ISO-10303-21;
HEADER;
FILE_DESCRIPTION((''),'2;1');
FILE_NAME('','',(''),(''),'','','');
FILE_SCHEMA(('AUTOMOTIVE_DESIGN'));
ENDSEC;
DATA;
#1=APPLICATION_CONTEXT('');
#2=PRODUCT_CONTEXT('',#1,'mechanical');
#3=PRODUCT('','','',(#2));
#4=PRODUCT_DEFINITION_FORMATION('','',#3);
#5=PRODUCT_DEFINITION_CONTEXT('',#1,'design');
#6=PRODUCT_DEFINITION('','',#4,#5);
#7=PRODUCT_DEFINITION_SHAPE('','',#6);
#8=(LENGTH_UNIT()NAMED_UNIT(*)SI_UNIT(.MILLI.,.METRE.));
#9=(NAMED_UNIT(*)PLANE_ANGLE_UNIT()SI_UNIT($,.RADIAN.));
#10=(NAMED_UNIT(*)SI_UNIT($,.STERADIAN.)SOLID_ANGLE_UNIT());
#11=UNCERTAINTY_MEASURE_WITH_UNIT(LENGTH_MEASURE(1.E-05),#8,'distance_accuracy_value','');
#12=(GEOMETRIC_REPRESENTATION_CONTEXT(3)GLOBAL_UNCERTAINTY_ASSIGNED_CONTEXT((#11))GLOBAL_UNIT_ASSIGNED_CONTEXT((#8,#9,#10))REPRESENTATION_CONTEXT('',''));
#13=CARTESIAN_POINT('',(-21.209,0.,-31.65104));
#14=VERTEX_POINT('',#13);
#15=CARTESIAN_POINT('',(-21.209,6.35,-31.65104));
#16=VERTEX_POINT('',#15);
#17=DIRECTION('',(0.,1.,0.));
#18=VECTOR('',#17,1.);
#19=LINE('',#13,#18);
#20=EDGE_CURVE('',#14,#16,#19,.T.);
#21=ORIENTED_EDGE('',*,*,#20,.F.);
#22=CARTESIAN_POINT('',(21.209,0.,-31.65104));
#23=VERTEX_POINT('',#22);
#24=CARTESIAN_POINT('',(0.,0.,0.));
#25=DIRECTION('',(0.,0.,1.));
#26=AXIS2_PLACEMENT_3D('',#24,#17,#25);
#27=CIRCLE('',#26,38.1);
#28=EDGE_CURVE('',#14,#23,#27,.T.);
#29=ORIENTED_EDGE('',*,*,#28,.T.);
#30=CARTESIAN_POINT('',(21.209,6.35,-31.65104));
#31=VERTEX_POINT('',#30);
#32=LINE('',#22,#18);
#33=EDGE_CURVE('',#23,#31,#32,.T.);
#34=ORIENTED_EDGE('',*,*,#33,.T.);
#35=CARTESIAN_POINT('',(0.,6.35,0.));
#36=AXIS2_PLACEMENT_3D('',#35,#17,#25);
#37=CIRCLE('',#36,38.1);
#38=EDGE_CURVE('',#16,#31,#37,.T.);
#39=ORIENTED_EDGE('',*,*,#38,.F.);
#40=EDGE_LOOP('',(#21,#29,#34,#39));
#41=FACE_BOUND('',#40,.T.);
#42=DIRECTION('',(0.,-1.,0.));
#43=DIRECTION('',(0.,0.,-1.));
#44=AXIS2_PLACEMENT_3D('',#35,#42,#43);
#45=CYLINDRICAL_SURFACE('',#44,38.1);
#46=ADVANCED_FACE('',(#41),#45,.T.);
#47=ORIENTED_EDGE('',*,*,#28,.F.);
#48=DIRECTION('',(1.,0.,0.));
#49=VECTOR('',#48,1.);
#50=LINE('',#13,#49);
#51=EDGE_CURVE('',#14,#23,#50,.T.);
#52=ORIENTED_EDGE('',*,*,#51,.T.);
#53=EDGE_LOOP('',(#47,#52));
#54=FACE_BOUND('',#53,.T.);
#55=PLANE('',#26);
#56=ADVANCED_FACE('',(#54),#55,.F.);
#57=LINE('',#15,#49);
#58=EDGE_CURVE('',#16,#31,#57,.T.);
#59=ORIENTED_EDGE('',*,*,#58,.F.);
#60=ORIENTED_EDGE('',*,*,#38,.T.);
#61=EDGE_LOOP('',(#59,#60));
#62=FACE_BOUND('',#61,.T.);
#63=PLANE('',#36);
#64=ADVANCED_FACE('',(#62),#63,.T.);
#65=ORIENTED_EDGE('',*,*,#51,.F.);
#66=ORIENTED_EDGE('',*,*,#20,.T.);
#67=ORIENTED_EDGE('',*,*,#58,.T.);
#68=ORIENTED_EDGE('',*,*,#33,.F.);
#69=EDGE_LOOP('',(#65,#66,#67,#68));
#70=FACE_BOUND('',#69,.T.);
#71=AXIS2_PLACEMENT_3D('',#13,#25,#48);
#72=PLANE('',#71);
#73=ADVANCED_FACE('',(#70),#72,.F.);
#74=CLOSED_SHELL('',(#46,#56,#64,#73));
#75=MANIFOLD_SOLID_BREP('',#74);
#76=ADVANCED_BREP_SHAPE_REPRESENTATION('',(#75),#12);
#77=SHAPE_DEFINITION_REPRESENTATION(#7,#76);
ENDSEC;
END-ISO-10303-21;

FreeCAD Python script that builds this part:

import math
import FreeCAD as App
import Part
import Sketcher
from FreeCAD import Vector
Q = App.Units.Quantity

doc = App.newDocument("Part")
params = doc.addObject("Spreadsheet::Sheet", "Params")
for row, (alias, value) in enumerate([
    ("sketch1_diameter", "3 in"),
    ("pad1_length", "0.25 in"),
    ("sketch2_radius", "1.5 in"),
    ("sketch2_width", "1.67 in"),
], start=1):
    params.set(f"A{row}", alias)
    params.set(f"B{row}", "=" + value)
    params.setAlias(f"B{row}", alias)

body = doc.addObject("PartDesign::Body", "Body")

# Sketch on XZ plane
sketch1 = body.newObject("Sketcher::SketchObject", "Sketch")
sketch1.AttachmentSupport = (doc.getObject("XZ_Plane"), [""])
sketch1.MapMode = "FlatFace"
sketch1.addGeometry(Part.Circle(Vector(0, 0, 0), Vector(0, 0, 1), 38), False)
sketch1.addConstraint(Sketcher.Constraint("Coincident", 0, 3, -1, 1))
sketch1.addConstraint(Sketcher.Constraint("Diameter", 0, Q("3 in")))
sketch1.setExpression("Constraints[1]", "Params.sketch1_diameter")
pad1 = body.newObject("PartDesign::Pad", "Pad")
pad1.Profile = sketch1
pad1.setExpression("Length", "Params.pad1_length")
pad1.Reversed = True

# Sketch on XZ plane
sketch2 = body.newObject("Sketcher::SketchObject", "Sketch001")
sketch2.AttachmentSupport = (doc.getObject("XZ_Plane"), [""])
sketch2.MapMode = "FlatFace"
sketch2.AttachmentOffset = App.Placement(Vector(0, 0, -0.25 * 25.4), App.Rotation())
sketch2.addGeometry(Part.LineSegment(Vector(-21, -32, 0), Vector(21, -32, 0)), False)
sketch2.addGeometry(Part.ArcOfCircle(Part.Circle(Vector(0, 0, 0), Vector(0, 0, 1), 38), math.radians(-124), math.radians(-56)), False)
sketch2.addConstraint(Sketcher.Constraint("Coincident", 0, 1, 1, 1))
sketch2.addConstraint(Sketcher.Constraint("Coincident", 1, 2, 0, 2))
sketch2.addConstraint(Sketcher.Constraint("Horizontal", 0))
sketch2.addConstraint(Sketcher.Constraint("Coincident", 1, 3, -1, 1))
sketch2.addConstraint(Sketcher.Constraint("Radius", 1, Q("1.5 in")))
sketch2.addConstraint(Sketcher.Constraint("DistanceX", 0, 1, 0, 2, Q("1.67 in")))
sketch2.setExpression("Constraints[4]", "Params.sketch2_radius")
sketch2.setExpression("Constraints[5]", "Params.sketch2_width")
pocket1 = body.newObject("PartDesign::Pocket", "Pocket")
pocket1.Profile = sketch2
pocket1.Type = "ThroughAll"
pocket1.Midplane = True

doc.recompute()
